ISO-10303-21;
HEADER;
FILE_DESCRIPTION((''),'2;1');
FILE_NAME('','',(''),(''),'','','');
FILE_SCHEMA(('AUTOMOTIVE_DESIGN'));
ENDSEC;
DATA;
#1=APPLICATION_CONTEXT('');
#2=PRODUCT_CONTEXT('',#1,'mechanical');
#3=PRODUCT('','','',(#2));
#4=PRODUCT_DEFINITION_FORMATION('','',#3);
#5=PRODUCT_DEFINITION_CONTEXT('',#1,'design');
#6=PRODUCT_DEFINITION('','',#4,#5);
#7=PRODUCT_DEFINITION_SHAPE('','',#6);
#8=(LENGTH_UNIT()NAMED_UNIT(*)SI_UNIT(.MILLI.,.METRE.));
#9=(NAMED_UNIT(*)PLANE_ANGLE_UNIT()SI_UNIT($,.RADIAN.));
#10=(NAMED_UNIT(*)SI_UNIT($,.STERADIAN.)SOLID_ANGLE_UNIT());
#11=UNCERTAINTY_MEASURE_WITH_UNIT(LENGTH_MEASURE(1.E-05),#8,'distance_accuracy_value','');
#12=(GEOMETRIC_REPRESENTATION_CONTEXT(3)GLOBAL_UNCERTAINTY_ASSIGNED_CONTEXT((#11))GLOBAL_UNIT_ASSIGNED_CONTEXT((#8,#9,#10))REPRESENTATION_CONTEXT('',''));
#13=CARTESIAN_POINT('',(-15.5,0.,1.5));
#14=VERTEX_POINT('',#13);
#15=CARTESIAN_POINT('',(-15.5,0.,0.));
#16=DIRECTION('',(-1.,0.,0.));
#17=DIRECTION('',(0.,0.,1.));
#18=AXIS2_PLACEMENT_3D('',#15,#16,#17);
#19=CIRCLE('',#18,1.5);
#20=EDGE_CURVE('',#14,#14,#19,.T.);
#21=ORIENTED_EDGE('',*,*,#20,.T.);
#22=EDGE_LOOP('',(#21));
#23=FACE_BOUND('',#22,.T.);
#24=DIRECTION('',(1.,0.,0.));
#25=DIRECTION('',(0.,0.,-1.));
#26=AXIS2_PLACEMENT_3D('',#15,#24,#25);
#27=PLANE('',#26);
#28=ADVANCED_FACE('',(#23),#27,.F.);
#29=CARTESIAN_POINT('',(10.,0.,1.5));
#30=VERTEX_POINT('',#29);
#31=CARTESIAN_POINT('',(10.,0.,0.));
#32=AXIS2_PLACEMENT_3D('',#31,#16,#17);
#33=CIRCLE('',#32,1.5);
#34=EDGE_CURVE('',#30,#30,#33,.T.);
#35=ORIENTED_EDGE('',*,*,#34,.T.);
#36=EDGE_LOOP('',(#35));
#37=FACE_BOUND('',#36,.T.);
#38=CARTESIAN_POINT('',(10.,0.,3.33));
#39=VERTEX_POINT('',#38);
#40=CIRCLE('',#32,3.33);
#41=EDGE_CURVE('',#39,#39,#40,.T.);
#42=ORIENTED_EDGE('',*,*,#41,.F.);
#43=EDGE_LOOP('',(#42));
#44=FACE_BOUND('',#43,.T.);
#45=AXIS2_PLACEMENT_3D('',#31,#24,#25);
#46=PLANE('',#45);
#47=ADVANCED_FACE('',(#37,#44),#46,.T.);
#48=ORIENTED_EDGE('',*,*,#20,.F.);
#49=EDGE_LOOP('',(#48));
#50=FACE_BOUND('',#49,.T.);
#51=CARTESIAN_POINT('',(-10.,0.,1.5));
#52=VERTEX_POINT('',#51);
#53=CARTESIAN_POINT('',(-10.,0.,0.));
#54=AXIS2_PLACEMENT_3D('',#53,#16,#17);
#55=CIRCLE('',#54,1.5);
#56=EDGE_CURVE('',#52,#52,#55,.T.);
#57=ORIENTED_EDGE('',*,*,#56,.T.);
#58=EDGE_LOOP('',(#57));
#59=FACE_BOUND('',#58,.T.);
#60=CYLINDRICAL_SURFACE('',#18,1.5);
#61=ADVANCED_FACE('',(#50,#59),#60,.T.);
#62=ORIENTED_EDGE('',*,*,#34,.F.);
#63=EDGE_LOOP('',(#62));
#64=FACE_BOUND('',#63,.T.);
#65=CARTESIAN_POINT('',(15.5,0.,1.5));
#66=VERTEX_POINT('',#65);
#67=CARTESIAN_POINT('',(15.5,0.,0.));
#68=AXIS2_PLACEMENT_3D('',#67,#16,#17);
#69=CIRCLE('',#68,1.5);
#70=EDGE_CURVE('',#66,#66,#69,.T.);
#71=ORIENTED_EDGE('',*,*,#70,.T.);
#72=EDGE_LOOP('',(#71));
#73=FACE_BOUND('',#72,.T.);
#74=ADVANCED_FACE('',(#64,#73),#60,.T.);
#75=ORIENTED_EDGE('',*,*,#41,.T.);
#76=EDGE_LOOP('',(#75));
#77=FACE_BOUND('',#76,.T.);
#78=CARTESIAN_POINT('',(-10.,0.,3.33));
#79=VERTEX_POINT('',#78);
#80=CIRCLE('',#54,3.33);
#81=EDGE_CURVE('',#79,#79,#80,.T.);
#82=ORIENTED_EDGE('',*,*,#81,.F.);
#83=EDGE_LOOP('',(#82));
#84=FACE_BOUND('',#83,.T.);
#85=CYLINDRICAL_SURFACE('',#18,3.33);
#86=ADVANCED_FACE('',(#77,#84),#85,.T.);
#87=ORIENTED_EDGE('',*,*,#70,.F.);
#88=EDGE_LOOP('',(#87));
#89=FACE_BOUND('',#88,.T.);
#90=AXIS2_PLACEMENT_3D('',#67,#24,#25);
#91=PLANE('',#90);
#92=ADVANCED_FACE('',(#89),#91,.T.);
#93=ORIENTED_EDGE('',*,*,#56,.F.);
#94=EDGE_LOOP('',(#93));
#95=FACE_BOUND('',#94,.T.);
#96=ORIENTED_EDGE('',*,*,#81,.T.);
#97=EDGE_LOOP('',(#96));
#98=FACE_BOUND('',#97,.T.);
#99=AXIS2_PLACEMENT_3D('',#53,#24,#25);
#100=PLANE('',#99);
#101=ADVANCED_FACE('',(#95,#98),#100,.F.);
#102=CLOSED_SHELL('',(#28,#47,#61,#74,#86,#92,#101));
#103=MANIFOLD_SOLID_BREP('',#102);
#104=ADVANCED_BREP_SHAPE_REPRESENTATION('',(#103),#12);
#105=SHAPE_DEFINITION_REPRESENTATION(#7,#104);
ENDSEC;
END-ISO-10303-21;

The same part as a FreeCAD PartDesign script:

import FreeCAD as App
import Part
import Sketcher

V = App.Vector

doc = App.newDocument("Part")
params = doc.addObject("Spreadsheet::Sheet", "Params")
for row, (alias, value) in enumerate([
    ("sketch1_width", "20 mm"),
    ("sketch1_width2", "31 mm"),
    ("sketch1_height", "1.5 mm"),
    ("sketch1_height2", "1.83 mm"),
    ("revolution_angle", "360 deg"),
], start=1):
    params.set(f"A{row}", alias)
    params.set(f"B{row}", "=" + value)
    params.setAlias(f"B{row}", alias)

body = doc.addObject("PartDesign::Body", "Body")

# Sketch on XY plane
sketch1 = body.newObject("Sketcher::SketchObject", "Sketch")
sketch1.AttachmentSupport = (doc.getObject("XY_Plane"), [""])
sketch1.MapMode = "FlatFace"
sketch1.addGeometry([
    Part.LineSegment(V(10, 1.5, 0), V(10, 3.3, 0)),  # 0
    Part.LineSegment(V(10, 3.3, 0), V(-10, 3.3, 0)),  # 1
    Part.LineSegment(V(-10, 3.3, 0), V(-10, 1.5, 0)),  # 2
    Part.LineSegment(V(-10, 1.5, 0), V(-15.5, 1.5, 0)),  # 3
    Part.LineSegment(V(-15.5, 1.5, 0), V(-15.5, 0, 0)),  # 4
    Part.LineSegment(V(-15.5, 0, 0), V(15.5, 0, 0)),  # 5
    Part.LineSegment(V(15.5, 0, 0), V(15.5, 1.5, 0)),  # 6
    Part.LineSegment(V(15.5, 1.5, 0), V(10, 1.5, 0)),  # 7
], False)
sketch1.addConstraint([
    Sketcher.Constraint("Coincident", 0, 2, 1, 1),
    Sketcher.Constraint("Coincident", 1, 2, 2, 1),
    Sketcher.Constraint("Coincident", 2, 2, 3, 1),
    Sketcher.Constraint("Coincident", 3, 2, 4, 1),
    Sketcher.Constraint("Coincident", 4, 2, 5, 1),
    Sketcher.Constraint("Coincident", 5, 2, 6, 1),
    Sketcher.Constraint("Coincident", 6, 2, 7, 1),
    Sketcher.Constraint("Coincident", 7, 2, 0, 1),
    Sketcher.Constraint("Vertical", 0),
    Sketcher.Constraint("Horizontal", 1),
    Sketcher.Constraint("Vertical", 2),
    Sketcher.Constraint("Horizontal", 3),
    Sketcher.Constraint("Vertical", 4),
    Sketcher.Constraint("Horizontal", 5),
    Sketcher.Constraint("Vertical", 6),
    Sketcher.Constraint("Horizontal", 7),
    Sketcher.Constraint("Symmetric", 4, 2, 5, 2, -1, 1),
    Sketcher.Constraint("Symmetric", 2, 2, 7, 2, -2),
    Sketcher.Constraint("DistanceX", 1, 2, 1, 1, 20.0),
    Sketcher.Constraint("DistanceX", 5, 1, 5, 2, 31.0),
    Sketcher.Constraint("DistanceY", 4, 2, 4, 1, 1.5),
    Sketcher.Constraint("DistanceY", 0, 1, 0, 2, 1.83),
])
sketch1.setExpression("Constraints[18]", "Params.sketch1_width")
sketch1.setExpression("Constraints[19]", "Params.sketch1_width2")
sketch1.setExpression("Constraints[20]", "Params.sketch1_height")
sketch1.setExpression("Constraints[21]", "Params.sketch1_height2")
revolution = body.newObject("PartDesign::Revolution", "Revolution")
revolution.Profile = sketch1
revolution.ReferenceAxis = (sketch1, ["H_Axis"])
revolution.setExpression("Angle", "Params.revolution_angle")

doc.recompute()
